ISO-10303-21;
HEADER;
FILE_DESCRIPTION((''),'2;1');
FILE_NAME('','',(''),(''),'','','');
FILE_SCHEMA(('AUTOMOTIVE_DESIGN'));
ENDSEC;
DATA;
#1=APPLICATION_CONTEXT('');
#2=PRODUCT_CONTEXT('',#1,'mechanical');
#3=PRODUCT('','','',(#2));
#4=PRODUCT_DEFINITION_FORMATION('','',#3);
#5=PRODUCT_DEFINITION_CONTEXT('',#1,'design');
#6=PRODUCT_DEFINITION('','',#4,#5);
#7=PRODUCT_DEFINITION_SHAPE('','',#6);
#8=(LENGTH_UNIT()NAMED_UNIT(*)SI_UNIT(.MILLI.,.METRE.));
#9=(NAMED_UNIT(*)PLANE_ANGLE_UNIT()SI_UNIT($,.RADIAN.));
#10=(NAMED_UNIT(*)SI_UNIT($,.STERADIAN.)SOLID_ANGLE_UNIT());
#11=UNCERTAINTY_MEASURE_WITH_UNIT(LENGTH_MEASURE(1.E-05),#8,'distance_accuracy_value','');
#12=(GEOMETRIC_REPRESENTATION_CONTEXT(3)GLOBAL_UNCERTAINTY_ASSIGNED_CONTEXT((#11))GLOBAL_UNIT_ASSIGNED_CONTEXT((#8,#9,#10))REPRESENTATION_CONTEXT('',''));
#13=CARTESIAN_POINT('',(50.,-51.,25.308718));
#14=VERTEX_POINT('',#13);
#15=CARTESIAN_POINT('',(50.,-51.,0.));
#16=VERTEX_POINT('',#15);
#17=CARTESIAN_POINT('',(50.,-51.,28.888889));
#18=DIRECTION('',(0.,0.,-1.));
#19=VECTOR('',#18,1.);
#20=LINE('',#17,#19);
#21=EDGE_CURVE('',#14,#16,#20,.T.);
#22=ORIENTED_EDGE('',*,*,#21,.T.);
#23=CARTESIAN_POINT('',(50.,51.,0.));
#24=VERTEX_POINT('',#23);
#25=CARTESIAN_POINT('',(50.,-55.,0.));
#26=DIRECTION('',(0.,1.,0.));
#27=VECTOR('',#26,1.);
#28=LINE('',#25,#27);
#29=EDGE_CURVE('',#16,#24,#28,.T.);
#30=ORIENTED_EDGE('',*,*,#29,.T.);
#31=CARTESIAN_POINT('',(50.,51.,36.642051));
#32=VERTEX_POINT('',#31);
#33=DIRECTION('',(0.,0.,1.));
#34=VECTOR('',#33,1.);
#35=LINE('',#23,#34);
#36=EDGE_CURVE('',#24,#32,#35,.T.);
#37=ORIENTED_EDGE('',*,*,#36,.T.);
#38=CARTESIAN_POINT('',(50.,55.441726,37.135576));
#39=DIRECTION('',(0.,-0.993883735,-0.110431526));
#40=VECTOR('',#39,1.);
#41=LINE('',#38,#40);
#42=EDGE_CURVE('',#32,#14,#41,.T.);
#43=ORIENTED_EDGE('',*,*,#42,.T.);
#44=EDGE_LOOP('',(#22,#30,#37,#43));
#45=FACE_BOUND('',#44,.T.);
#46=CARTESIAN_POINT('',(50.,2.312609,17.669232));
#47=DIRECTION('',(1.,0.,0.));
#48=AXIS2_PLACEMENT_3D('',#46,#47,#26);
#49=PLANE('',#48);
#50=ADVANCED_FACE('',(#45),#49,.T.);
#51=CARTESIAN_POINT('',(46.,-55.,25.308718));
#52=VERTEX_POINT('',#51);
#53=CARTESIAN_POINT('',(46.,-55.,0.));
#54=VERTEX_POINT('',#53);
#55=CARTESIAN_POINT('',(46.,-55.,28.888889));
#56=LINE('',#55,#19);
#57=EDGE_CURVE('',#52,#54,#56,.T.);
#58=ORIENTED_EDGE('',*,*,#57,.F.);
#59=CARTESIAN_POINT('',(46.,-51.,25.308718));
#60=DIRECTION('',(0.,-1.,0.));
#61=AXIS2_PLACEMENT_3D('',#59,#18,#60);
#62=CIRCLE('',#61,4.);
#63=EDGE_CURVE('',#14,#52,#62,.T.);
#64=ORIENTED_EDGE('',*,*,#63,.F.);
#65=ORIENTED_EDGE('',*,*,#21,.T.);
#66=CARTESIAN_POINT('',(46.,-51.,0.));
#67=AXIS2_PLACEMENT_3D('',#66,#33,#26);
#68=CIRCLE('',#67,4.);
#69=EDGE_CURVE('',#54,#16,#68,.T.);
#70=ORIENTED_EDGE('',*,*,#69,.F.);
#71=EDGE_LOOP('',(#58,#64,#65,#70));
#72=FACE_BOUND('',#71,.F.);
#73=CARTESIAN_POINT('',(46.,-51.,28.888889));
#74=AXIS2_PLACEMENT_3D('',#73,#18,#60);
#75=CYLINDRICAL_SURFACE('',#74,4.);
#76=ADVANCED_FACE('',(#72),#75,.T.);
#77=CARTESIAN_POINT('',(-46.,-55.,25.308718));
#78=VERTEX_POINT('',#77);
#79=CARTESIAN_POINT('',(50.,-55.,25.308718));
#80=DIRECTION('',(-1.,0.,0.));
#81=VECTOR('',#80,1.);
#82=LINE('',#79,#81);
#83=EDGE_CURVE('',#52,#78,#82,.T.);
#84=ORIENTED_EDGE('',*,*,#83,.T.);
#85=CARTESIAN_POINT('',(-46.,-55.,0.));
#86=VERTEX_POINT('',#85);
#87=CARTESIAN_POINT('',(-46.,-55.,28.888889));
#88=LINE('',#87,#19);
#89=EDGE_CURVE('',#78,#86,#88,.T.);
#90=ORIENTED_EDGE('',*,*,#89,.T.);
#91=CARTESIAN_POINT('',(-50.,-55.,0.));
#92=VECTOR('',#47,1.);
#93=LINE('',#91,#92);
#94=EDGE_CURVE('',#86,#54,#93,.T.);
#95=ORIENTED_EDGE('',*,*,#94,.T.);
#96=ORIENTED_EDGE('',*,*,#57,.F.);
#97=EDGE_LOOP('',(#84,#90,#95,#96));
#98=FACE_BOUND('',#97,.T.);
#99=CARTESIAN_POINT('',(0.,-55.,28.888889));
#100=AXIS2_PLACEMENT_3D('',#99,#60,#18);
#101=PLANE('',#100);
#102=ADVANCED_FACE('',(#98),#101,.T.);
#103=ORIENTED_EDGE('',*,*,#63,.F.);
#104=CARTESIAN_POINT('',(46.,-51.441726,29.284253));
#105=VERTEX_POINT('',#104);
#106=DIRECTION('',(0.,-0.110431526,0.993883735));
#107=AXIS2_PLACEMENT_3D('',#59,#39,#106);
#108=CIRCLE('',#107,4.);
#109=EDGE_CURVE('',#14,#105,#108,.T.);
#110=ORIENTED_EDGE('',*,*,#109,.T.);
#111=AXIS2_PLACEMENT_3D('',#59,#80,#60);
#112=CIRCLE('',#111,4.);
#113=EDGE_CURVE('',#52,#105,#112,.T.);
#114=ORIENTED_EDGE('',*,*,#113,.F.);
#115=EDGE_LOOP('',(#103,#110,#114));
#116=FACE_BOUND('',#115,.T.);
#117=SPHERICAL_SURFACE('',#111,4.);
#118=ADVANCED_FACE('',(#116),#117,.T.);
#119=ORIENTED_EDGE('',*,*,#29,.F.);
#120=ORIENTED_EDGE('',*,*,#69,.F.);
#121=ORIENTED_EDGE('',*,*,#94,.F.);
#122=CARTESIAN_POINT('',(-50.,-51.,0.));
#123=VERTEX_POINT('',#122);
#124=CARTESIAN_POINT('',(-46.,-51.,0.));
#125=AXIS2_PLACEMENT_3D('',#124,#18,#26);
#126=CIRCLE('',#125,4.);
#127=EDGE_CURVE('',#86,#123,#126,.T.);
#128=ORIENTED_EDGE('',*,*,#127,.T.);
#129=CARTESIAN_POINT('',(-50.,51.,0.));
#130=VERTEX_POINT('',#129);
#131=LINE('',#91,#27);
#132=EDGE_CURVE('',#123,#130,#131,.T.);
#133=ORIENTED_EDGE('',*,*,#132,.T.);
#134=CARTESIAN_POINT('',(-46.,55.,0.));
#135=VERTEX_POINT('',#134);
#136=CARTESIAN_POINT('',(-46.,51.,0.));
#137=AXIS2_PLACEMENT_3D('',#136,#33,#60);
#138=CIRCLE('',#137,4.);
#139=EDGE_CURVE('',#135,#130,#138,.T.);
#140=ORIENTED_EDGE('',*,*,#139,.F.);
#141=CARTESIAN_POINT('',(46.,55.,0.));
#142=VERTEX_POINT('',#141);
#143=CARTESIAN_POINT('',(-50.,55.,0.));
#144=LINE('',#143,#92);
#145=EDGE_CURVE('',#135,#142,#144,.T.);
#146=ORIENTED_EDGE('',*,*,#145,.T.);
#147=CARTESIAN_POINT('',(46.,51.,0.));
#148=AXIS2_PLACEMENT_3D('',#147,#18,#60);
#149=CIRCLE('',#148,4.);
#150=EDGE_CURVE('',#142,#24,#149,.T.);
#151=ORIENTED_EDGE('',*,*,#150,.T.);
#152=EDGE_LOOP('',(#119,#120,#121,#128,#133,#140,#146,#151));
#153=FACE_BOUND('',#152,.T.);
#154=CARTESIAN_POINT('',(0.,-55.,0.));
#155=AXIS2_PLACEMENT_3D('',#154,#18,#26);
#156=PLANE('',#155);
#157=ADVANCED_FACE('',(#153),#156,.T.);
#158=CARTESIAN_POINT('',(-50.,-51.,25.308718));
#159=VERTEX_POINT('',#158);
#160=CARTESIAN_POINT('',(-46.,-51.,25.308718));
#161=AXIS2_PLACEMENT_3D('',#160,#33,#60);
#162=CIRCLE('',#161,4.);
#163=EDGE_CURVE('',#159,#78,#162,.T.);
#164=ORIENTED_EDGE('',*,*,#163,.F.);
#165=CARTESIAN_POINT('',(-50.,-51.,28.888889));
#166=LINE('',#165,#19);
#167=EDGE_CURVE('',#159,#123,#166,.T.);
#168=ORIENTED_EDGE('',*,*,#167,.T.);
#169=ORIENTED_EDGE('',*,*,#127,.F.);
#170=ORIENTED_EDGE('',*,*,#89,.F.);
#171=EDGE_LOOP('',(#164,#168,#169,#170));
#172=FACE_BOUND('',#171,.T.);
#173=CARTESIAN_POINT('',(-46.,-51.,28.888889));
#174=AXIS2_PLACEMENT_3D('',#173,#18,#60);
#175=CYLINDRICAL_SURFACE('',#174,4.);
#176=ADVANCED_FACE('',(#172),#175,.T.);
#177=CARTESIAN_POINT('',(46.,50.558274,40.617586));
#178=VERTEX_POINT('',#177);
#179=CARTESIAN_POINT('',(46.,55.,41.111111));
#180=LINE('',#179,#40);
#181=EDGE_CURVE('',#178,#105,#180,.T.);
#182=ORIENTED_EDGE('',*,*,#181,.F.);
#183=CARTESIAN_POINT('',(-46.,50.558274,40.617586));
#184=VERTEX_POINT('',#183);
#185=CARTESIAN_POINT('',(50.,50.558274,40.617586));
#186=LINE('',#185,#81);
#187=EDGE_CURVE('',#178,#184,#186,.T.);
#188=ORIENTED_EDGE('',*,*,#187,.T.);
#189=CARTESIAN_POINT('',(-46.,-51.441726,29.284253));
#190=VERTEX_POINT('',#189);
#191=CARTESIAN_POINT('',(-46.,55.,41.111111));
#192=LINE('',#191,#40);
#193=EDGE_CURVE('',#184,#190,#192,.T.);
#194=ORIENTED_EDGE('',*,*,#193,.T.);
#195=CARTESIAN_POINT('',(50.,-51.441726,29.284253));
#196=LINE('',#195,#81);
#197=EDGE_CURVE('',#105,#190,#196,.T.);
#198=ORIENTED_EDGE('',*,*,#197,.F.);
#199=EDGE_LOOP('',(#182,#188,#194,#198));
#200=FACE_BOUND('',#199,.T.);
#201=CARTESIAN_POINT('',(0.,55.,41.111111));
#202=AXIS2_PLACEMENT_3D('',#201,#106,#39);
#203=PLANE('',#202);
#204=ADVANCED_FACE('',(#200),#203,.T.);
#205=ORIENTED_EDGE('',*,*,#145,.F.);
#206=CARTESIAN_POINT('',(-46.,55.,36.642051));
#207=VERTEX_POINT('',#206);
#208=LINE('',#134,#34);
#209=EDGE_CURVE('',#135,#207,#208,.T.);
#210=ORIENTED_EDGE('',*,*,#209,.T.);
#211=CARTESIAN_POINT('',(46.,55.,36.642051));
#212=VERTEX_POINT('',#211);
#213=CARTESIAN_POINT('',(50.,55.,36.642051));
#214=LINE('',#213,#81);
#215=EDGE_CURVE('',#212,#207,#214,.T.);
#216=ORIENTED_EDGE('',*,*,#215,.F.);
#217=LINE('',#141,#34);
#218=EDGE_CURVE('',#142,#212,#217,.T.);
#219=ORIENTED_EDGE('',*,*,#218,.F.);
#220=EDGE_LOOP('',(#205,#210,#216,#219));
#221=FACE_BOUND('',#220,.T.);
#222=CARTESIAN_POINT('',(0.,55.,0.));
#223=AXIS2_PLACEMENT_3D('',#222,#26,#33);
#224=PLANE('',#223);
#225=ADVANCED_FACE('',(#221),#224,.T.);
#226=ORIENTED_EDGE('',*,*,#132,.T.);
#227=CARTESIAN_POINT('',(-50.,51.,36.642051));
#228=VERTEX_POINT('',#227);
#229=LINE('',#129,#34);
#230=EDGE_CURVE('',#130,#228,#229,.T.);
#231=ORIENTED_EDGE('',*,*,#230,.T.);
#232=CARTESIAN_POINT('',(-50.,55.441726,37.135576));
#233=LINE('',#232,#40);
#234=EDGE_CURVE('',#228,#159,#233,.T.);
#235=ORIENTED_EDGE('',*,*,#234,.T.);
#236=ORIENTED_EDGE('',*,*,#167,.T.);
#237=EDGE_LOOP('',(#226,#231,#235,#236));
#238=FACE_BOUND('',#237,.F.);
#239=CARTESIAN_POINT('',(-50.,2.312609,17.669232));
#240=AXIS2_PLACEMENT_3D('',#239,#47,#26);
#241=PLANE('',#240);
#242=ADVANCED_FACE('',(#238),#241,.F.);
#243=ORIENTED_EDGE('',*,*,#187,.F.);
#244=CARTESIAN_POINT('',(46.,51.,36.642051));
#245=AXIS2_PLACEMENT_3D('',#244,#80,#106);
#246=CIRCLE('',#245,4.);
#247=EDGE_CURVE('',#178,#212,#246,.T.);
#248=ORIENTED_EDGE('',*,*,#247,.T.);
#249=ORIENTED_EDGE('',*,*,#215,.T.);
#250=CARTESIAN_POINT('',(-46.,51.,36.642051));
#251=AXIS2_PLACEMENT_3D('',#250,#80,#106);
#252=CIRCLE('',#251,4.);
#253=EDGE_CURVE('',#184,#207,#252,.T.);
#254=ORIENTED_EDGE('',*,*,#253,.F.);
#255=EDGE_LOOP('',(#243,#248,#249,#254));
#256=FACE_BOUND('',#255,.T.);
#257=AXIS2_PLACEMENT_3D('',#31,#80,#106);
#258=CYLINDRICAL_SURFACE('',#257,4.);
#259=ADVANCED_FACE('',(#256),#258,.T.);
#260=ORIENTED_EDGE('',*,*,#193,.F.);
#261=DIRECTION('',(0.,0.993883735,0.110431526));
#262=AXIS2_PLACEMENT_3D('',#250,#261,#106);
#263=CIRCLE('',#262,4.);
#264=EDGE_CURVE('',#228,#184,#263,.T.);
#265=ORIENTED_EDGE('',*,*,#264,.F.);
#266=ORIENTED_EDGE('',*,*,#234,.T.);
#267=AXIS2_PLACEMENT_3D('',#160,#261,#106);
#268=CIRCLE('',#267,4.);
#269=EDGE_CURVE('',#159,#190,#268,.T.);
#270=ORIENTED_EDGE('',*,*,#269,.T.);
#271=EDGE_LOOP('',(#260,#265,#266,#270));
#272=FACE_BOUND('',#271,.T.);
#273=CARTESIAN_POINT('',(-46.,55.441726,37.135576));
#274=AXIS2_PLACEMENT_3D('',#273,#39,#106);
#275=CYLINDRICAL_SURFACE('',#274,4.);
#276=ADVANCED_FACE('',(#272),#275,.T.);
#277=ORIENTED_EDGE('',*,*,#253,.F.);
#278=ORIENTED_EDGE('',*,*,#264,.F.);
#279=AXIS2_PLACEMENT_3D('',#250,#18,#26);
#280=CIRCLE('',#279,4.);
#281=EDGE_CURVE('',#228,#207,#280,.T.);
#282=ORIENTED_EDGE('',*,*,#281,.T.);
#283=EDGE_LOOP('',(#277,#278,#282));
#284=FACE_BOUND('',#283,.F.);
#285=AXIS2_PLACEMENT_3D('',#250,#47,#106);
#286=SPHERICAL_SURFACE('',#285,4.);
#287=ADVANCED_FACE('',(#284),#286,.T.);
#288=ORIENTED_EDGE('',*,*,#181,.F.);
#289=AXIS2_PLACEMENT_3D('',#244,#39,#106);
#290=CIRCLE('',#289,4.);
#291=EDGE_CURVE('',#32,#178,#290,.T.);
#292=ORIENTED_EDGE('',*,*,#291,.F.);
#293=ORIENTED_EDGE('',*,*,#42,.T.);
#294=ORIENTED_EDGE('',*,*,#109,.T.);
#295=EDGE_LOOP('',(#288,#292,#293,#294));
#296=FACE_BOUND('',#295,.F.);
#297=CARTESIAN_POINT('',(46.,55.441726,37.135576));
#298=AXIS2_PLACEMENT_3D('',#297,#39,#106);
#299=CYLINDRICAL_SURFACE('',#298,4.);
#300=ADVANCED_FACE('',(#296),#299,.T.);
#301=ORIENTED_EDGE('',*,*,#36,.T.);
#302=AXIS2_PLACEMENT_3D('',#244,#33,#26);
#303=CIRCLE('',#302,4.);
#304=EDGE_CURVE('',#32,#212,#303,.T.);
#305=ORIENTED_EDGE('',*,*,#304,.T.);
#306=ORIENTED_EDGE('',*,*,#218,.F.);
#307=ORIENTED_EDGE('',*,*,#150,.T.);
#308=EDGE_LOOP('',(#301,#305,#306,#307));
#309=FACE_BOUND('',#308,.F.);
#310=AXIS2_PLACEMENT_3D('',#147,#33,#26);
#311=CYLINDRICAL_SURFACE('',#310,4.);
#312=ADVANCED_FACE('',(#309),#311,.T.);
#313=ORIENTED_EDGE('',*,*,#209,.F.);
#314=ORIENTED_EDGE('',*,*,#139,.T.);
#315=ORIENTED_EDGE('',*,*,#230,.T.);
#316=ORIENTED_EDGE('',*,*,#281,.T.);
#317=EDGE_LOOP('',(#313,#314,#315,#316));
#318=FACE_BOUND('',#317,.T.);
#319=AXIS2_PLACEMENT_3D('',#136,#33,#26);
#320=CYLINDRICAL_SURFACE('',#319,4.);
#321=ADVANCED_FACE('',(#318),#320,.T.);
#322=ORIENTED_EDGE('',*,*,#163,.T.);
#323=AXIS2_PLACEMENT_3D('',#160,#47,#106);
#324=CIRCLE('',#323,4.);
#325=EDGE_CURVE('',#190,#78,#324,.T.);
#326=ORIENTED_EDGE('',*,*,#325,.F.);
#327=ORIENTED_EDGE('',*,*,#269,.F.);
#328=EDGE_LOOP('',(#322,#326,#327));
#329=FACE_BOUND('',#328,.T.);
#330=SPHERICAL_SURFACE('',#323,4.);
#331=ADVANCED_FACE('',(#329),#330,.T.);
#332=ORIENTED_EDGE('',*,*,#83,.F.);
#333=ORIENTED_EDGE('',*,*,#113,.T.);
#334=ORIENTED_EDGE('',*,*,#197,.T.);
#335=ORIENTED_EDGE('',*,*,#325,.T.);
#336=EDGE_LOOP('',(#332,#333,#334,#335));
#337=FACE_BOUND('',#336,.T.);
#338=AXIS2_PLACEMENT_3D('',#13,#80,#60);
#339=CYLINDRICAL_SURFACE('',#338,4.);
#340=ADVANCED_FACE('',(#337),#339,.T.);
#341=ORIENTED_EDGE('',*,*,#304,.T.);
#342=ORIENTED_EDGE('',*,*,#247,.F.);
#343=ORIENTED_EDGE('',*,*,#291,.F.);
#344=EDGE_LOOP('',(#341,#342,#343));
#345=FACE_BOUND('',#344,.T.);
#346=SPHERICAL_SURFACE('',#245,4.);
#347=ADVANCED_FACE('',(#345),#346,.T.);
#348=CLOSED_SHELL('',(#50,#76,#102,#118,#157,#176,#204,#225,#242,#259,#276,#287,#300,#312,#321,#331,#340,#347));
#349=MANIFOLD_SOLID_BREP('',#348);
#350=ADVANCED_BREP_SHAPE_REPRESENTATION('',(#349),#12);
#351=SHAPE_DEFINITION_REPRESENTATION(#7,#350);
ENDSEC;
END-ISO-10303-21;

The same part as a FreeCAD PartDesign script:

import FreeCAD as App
import Part
import Sketcher
from FreeCAD import Vector
Q = App.Units.Quantity


def edges_at(feature, points):
    """Names of the edges that pass closest to the given points."""
    edges = feature.Shape.Edges
    near = lambda p: min(range(len(edges)), key=lambda i: edges[i].distToShape(Part.Vertex(*p))[0])
    return sorted({f"Edge{near(p) + 1}" for p in points})


def add_polygon(sketch, points):
    """Adds a closed chain of lines whose ends are joined by coincident constraints."""
    first, n = sketch.GeometryCount, len(points)
    for a, b in zip(points, points[1:] + points[:1]):
        sketch.addGeometry(Part.LineSegment(App.Vector(*a, 0), App.Vector(*b, 0)), False)
    for i in range(n):
        sketch.addConstraint(Sketcher.Constraint("Coincident", first + i, 2, first + (i + 1) % n, 1))

doc = App.newDocument("Part")
body = doc.addObject("PartDesign::Body", "Body")

# Sketch on YZ plane
sketch1 = doc.addObject("Sketcher::SketchObject", "Sketch")
body.addObject(sketch1)
sketch1.AttachmentSupport = (doc.YZ_Plane, [""])
sketch1.MapMode = "FlatFace"
add_polygon(sketch1, [(-55, 29), (-55, 0), (55, 0), (55, 41)])  # lines 0-3
sketch1.addConstraint([
    Sketcher.Constraint("Vertical", 0),
    Sketcher.Constraint("Horizontal", 1),
    Sketcher.Constraint("Vertical", 2),
    Sketcher.Constraint("Symmetric", 0, 2, 1, 2, -1, 1),
    Sketcher.Constraint("DistanceX", 1, 1, 1, 2, Q("110 mm")),
    Sketcher.Constraint("DistanceY", 0, 2, 0, 1, Q("28.888889 mm")),
    Sketcher.Constraint("DistanceY", 2, 1, 2, 2, Q("41.111111 mm")),
])
pad1 = doc.addObject("PartDesign::Pad", "Pad")
body.addObject(pad1)
pad1.Profile = sketch1
pad1.Type = "TwoLengths"
pad1.Length = 50
pad1.Length2 = 50
doc.recompute()

fillet = doc.addObject("PartDesign::Fillet", "Fillet")
body.addObject(fillet)
fillet.Base = (pad1, edges_at(pad1, [
    (50, -55, 14.444),
    (-50, -55, 14.444),
    (50, 55, 20.556),
    (-50, 55, 20.556),
    (0, 55, 41.111),
    (50, 0, 35),
    (0, -55, 28.889),
    (-50, 0, 35),
]))
fillet.Radius = 4

doc.recompute()
